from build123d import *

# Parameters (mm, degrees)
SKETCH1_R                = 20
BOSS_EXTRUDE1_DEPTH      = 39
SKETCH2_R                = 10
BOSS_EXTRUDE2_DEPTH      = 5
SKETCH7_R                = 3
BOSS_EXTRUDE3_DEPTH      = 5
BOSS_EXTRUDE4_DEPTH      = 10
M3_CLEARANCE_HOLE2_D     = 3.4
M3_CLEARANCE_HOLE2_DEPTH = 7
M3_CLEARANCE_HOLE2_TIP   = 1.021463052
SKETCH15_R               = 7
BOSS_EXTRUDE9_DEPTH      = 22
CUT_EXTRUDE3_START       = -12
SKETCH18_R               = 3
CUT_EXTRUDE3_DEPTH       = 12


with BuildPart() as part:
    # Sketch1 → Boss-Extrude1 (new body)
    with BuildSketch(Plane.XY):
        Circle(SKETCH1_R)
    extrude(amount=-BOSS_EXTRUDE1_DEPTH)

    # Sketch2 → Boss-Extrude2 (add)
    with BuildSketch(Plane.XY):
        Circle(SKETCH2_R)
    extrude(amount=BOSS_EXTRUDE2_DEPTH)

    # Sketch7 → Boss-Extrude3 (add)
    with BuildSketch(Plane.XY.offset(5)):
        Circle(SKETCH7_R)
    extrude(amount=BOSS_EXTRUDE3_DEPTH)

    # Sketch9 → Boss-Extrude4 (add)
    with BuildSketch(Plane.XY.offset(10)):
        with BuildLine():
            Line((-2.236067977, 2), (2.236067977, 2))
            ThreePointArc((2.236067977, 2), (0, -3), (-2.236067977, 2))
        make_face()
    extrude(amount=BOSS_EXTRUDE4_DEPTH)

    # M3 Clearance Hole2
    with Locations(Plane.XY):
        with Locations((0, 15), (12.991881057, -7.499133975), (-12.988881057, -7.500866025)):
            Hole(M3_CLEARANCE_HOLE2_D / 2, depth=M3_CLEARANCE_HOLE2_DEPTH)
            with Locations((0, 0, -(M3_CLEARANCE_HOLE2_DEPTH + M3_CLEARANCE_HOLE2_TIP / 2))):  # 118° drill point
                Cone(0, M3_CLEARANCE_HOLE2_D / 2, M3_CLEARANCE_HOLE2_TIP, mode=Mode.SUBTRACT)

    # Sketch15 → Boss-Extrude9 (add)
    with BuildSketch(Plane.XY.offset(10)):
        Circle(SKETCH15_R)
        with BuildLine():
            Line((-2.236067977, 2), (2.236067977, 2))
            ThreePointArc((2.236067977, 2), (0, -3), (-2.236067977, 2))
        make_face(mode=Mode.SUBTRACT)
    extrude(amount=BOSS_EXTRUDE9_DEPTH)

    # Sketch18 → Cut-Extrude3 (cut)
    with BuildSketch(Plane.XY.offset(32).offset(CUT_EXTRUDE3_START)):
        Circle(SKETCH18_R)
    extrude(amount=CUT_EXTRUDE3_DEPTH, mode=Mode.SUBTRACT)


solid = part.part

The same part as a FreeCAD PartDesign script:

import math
import FreeCAD as App
import Part
import Sketcher

V = App.Vector

doc = App.newDocument("Part")
body = doc.addObject("PartDesign::Body", "Body")

# Sketch on XY plane
sketch1 = body.newObject("Sketcher::SketchObject", "Sketch")
sketch1.AttachmentSupport = (doc.getObject("XY_Plane"), [""])
sketch1.MapMode = "FlatFace"
sketch1.addGeometry(Part.Circle(V(0, 0, 0), V(0, 0, 1), 20), False)
sketch1.addConstraint([
    Sketcher.Constraint("Coincident", 0, 3, -1, 1),
    Sketcher.Constraint("Diameter", 0, 40.0),
])
pad1 = body.newObject("PartDesign::Pad", "Pad")
pad1.Profile = sketch1
pad1.Length = 39
pad1.Reversed = True

# Sketch on XY plane
sketch2 = body.newObject("Sketcher::SketchObject", "Sketch001")
sketch2.AttachmentSupport = (doc.getObject("XY_Plane"), [""])
sketch2.MapMode = "FlatFace"
sketch2.addGeometry(Part.Circle(V(0, 0, 0), V(0, 0, 1), 10), False)
sketch2.addConstraint([
    Sketcher.Constraint("Coincident", 0, 3, -1, 1),
    Sketcher.Constraint("Diameter", 0, 20.0),
])
pad2 = body.newObject("PartDesign::Pad", "Pad001")
pad2.Profile = sketch2
pad2.Length = 5

# Sketch on XY plane
sketch3 = body.newObject("Sketcher::SketchObject", "Sketch002")
sketch3.AttachmentSupport = (doc.getObject("XY_Plane"), [""])
sketch3.MapMode = "FlatFace"
sketch3.AttachmentOffset = App.Placement(V(0, 0, 5), App.Rotation())
sketch3.addGeometry(Part.Circle(V(0, 0, 0), V(0, 0, 1), 3), False)
sketch3.addConstraint([
    Sketcher.Constraint("Coincident", 0, 3, -1, 1),
    Sketcher.Constraint("Diameter", 0, 6.0),
])
pad3 = body.newObject("PartDesign::Pad", "Pad002")
pad3.Profile = sketch3
pad3.Length = 5

# Sketch on XY plane
sketch4 = body.newObject("Sketcher::SketchObject", "Sketch003")
sketch4.AttachmentSupport = (doc.getObject("XY_Plane"), [""])
sketch4.MapMode = "FlatFace"
sketch4.AttachmentOffset = App.Placement(V(0, 0, 10), App.Rotation())
sketch4.addGeometry([
    Part.LineSegment(V(2.236068, 2, 0), V(-2.236068, 2, 0)),
    Part.ArcOfCircle(Part.Circle(V(0, 0, 0), V(0, 0, 1), 3), math.radians(138.189685), math.radians(401.810315)),
], False)
sketch4.addConstraint([
    Sketcher.Constraint("Coincident", 0, 1, 1, 2),
    Sketcher.Constraint("Coincident", 1, 1, 0, 2),
    Sketcher.Constraint("Horizontal", 0),
    Sketcher.Constraint("Coincident", 1, 3, -1, 1),
    Sketcher.Constraint("Radius", 1, 3.0),
    Sketcher.Constraint("DistanceY", -1, 1, 0, 1, 2.0),
])
pad4 = body.newObject("PartDesign::Pad", "Pad003")
pad4.Profile = sketch4
pad4.Length = 10

# Sketch on XY plane
sketch5 = body.newObject("Sketcher::SketchObject", "Sketch004")
sketch5.AttachmentSupport = (doc.getObject("XY_Plane"), [""])
sketch5.MapMode = "FlatFace"
sketch5.addGeometry([
    Part.Circle(V(0, 15, 0), V(0, 0, 1), 1.7),
    Part.Circle(V(12.991881, -7.499134, 0), V(0, 0, 1), 1.7),
    Part.Circle(V(-12.988881, -7.500866, 0), V(0, 0, 1), 1.7),
], False)
sketch5.addConstraint([
    Sketcher.Constraint("Equal", 0, 1),
    Sketcher.Constraint("Equal", 1, 2),
    Sketcher.Constraint("PointOnObject", 0, 3, -2),
    Sketcher.Constraint("Diameter", 0, 3.4),
    Sketcher.Constraint("DistanceY", -1, 1, 0, 3, 15.0),
    Sketcher.Constraint("DistanceX", -1, 1, 1, 3, 12.991881),
    Sketcher.Constraint("DistanceX", 2, 3, -1, 1, 12.988881),
    Sketcher.Constraint("DistanceY", 1, 3, -1, 1, 7.499134),
    Sketcher.Constraint("DistanceY", 2, 3, -1, 1, 7.500866),
])
doc.recompute()
hole = body.newObject("PartDesign::Hole", "Hole")
hole.Profile = sketch5
hole.ThreadType = "None"
hole.Diameter = 3.4
hole.DepthType = "Dimension"
hole.Depth = 7
hole.DrillPoint = "Angled"
hole.DrillPointAngle = 118

# Sketch on XY plane
sketch6 = body.newObject("Sketcher::SketchObject", "Sketch005")
sketch6.AttachmentSupport = (doc.getObject("XY_Plane"), [""])
sketch6.MapMode = "FlatFace"
sketch6.AttachmentOffset = App.Placement(V(0, 0, 10), App.Rotation())
sketch6.addGeometry([
    Part.Circle(V(0, 0, 0), V(0, 0, 1), 7),
    Part.ArcOfCircle(Part.Circle(V(0, 0, 0), V(0, 0, 1), 3), math.radians(138.189685), math.radians(401.810315)),
    Part.LineSegment(V(-2.236068, 2, 0), V(2.236068, 2, 0)),
], False)
sketch6.addConstraint([
    Sketcher.Constraint("Coincident", 1, 1, 2, 1),
    Sketcher.Constraint("Coincident", 2, 2, 1, 2),
    Sketcher.Constraint("Horizontal", 2),
    Sketcher.Constraint("Coincident", 0, 3, -1, 1),
    Sketcher.Constraint("Coincident", 1, 3, -1, 1),
    Sketcher.Constraint("Diameter", 0, 14.0),
    Sketcher.Constraint("Radius", 1, 3.0),
    Sketcher.Constraint("DistanceY", -1, 1, 1, 1, 2.0),
])
pad5 = body.newObject("PartDesign::Pad", "Pad004")
pad5.Profile = sketch6
pad5.Length = 22

# Sketch on XY plane
sketch7 = body.newObject("Sketcher::SketchObject", "Sketch006")
sketch7.AttachmentSupport = (doc.getObject("XY_Plane"), [""])
sketch7.MapMode = "FlatFace"
sketch7.AttachmentOffset = App.Placement(V(0, 0, 20), App.Rotation())
sketch7.addGeometry(Part.Circle(V(0, 0, 0), V(0, 0, 1), 3), False)
sketch7.addConstraint([
    Sketcher.Constraint("Coincident", 0, 3, -1, 1),
    Sketcher.Constraint("Diameter", 0, 6.0),
])
pocket1 = body.newObject("PartDesign::Pocket", "Pocket")
pocket1.Profile = sketch7
pocket1.Length = 12
pocket1.Reversed = True

doc.recompute()
